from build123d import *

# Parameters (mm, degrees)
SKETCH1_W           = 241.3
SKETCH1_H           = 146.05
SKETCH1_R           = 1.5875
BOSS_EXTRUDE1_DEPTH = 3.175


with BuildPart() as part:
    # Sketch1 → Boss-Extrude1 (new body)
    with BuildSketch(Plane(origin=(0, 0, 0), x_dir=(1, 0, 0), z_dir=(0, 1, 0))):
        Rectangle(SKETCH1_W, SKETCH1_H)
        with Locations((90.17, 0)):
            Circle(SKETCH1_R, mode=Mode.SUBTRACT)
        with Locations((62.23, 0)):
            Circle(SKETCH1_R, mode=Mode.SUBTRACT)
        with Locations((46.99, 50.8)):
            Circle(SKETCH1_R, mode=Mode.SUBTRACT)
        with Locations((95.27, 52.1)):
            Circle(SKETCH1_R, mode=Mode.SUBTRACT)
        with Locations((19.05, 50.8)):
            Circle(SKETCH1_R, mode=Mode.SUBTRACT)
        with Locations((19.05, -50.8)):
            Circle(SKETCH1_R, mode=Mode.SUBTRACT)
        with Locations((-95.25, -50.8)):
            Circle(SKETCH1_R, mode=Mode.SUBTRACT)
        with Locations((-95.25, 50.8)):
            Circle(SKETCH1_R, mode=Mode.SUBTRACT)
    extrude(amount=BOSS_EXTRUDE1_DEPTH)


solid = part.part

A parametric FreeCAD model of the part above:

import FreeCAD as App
import Part
import Sketcher
from FreeCAD import Vector
Q = App.Units.Quantity


def add_polygon(sketch, points):
    """Adds a closed chain of lines whose ends are joined by coincident constraints."""
    first, n = sketch.GeometryCount, len(points)
    for a, b in zip(points, points[1:] + points[:1]):
        sketch.addGeometry(Part.LineSegment(App.Vector(*a, 0), App.Vector(*b, 0)), False)
    for i in range(n):
        sketch.addConstraint(Sketcher.Constraint("Coincident", first + i, 2, first + (i + 1) % n, 1))

doc = App.newDocument("Part")
params = doc.addObject("Spreadsheet::Sheet", "Params")
for row, (alias, value) in enumerate([
    ("sketch1_diameter", "0.125 in"),
    ("sketch1_width", "9.5 in"),
    ("sketch1_height", "5.75 in"),
    ("pad1_length", "0.125 in"),
], start=1):
    params.set(f"A{row}", alias)
    params.set(f"B{row}", "=" + value)
    params.setAlias(f"B{row}", alias)

body = doc.addObject("PartDesign::Body", "Body")

# Sketch on XZ plane
sketch1 = body.newObject("Sketcher::SketchObject", "Sketch")
sketch1.AttachmentSupport = (doc.getObject("XZ_Plane"), [""])
sketch1.MapMode = "FlatFace"
add_polygon(sketch1, [(-120.7, -73), (-120.7, 73), (120.7, 73), (120.7, -73)])  # lines 0-3
sketch1.addGeometry(Part.Circle(Vector(-95.2, 50.8, 0), Vector(0, 0, 1), 1.6), False)  # 4
sketch1.addGeometry(Part.Circle(Vector(19.1, 50.8, 0), Vector(0, 0, 1), 1.6), False)  # 5
sketch1.addGeometry(Part.Circle(Vector(62.2, 0, 0), Vector(0, 0, 1), 1.6), False)  # 6
sketch1.addGeometry(Part.Circle(Vector(90.2, 0, 0), Vector(0, 0, 1), 1.6), False)  # 7
sketch1.addGeometry(Part.Circle(Vector(-95.2, -50.8, 0), Vector(0, 0, 1), 1.6), False)  # 8
sketch1.addGeometry(Part.Circle(Vector(19.1, -50.8, 0), Vector(0, 0, 1), 1.6), False)  # 9
sketch1.addGeometry(Part.Circle(Vector(47, -50.8, 0), Vector(0, 0, 1), 1.6), False)  # 10
sketch1.addGeometry(Part.Circle(Vector(95.3, -52.1, 0), Vector(0, 0, 1), 1.6), False)  # 11
sketch1.addConstraint([
    Sketcher.Constraint("Vertical", 0),
    Sketcher.Constraint("Horizontal", 1),
    Sketcher.Constraint("Vertical", 2),
    Sketcher.Constraint("Horizontal", 3),
    Sketcher.Constraint("Equal", 4, 5),
    Sketcher.Constraint("Equal", 5, 6),
    Sketcher.Constraint("Equal", 6, 7),
    Sketcher.Constraint("Equal", 7, 8),
    Sketcher.Constraint("Equal", 8, 9),
    Sketcher.Constraint("Equal", 9, 10),
    Sketcher.Constraint("Equal", 10, 11),
    Sketcher.Constraint("Symmetric", 0, 2, 2, 2, -1, 1),
    Sketcher.Constraint("Symmetric", 4, 3, 8, 3, -1),
    Sketcher.Constraint("Symmetric", 5, 3, 9, 3, -1),
    Sketcher.Constraint("PointOnObject", 6, 3, -1),
    Sketcher.Constraint("PointOnObject", 7, 3, -1),
    Sketcher.Constraint("Horizontal", 4, 3, 5, 3),
    Sketcher.Constraint("Horizontal", 9, 3, 10, 3),
    Sketcher.Constraint("Diameter", 4, Q("0.125 in")),
    Sketcher.Constraint("DistanceX", 1, 1, 1, 2, Q("9.5 in")),
    Sketcher.Constraint("DistanceY", -1, 1, 4, 3, Q("2 in")),
    Sketcher.Constraint("DistanceX", 0, 2, 4, 3, Q("1 in")),
    Sketcher.Constraint("DistanceX", 5, 3, 1, 2, Q("4 in")),
    Sketcher.Constraint("DistanceY", 0, 1, 0, 2, Q("5.75 in")),
    Sketcher.Constraint("DistanceX", 5, 3, 6, 3, Q("1.7 in")),
    Sketcher.Constraint("DistanceX", 6, 3, 7, 3, Q("1.1 in")),
    Sketcher.Constraint("DistanceX", 9, 3, 10, 3, Q("1.1 in")),
    Sketcher.Constraint("DistanceX", -1, 1, 11, 3, 95.27),
    Sketcher.Constraint("DistanceY", 11, 3, -1, 1, 52.1),
])
sketch1.setExpression("Constraints[22]", "Params.sketch1_diameter")
sketch1.setExpression("Constraints[23]", "Params.sketch1_width")
sketch1.setExpression("Constraints[27]", "Params.sketch1_height")
pad1 = body.newObject("PartDesign::Pad", "Pad")
pad1.Profile = sketch1
pad1.setExpression("Length", "Params.pad1_length")
pad1.Reversed = True

doc.recompute()
